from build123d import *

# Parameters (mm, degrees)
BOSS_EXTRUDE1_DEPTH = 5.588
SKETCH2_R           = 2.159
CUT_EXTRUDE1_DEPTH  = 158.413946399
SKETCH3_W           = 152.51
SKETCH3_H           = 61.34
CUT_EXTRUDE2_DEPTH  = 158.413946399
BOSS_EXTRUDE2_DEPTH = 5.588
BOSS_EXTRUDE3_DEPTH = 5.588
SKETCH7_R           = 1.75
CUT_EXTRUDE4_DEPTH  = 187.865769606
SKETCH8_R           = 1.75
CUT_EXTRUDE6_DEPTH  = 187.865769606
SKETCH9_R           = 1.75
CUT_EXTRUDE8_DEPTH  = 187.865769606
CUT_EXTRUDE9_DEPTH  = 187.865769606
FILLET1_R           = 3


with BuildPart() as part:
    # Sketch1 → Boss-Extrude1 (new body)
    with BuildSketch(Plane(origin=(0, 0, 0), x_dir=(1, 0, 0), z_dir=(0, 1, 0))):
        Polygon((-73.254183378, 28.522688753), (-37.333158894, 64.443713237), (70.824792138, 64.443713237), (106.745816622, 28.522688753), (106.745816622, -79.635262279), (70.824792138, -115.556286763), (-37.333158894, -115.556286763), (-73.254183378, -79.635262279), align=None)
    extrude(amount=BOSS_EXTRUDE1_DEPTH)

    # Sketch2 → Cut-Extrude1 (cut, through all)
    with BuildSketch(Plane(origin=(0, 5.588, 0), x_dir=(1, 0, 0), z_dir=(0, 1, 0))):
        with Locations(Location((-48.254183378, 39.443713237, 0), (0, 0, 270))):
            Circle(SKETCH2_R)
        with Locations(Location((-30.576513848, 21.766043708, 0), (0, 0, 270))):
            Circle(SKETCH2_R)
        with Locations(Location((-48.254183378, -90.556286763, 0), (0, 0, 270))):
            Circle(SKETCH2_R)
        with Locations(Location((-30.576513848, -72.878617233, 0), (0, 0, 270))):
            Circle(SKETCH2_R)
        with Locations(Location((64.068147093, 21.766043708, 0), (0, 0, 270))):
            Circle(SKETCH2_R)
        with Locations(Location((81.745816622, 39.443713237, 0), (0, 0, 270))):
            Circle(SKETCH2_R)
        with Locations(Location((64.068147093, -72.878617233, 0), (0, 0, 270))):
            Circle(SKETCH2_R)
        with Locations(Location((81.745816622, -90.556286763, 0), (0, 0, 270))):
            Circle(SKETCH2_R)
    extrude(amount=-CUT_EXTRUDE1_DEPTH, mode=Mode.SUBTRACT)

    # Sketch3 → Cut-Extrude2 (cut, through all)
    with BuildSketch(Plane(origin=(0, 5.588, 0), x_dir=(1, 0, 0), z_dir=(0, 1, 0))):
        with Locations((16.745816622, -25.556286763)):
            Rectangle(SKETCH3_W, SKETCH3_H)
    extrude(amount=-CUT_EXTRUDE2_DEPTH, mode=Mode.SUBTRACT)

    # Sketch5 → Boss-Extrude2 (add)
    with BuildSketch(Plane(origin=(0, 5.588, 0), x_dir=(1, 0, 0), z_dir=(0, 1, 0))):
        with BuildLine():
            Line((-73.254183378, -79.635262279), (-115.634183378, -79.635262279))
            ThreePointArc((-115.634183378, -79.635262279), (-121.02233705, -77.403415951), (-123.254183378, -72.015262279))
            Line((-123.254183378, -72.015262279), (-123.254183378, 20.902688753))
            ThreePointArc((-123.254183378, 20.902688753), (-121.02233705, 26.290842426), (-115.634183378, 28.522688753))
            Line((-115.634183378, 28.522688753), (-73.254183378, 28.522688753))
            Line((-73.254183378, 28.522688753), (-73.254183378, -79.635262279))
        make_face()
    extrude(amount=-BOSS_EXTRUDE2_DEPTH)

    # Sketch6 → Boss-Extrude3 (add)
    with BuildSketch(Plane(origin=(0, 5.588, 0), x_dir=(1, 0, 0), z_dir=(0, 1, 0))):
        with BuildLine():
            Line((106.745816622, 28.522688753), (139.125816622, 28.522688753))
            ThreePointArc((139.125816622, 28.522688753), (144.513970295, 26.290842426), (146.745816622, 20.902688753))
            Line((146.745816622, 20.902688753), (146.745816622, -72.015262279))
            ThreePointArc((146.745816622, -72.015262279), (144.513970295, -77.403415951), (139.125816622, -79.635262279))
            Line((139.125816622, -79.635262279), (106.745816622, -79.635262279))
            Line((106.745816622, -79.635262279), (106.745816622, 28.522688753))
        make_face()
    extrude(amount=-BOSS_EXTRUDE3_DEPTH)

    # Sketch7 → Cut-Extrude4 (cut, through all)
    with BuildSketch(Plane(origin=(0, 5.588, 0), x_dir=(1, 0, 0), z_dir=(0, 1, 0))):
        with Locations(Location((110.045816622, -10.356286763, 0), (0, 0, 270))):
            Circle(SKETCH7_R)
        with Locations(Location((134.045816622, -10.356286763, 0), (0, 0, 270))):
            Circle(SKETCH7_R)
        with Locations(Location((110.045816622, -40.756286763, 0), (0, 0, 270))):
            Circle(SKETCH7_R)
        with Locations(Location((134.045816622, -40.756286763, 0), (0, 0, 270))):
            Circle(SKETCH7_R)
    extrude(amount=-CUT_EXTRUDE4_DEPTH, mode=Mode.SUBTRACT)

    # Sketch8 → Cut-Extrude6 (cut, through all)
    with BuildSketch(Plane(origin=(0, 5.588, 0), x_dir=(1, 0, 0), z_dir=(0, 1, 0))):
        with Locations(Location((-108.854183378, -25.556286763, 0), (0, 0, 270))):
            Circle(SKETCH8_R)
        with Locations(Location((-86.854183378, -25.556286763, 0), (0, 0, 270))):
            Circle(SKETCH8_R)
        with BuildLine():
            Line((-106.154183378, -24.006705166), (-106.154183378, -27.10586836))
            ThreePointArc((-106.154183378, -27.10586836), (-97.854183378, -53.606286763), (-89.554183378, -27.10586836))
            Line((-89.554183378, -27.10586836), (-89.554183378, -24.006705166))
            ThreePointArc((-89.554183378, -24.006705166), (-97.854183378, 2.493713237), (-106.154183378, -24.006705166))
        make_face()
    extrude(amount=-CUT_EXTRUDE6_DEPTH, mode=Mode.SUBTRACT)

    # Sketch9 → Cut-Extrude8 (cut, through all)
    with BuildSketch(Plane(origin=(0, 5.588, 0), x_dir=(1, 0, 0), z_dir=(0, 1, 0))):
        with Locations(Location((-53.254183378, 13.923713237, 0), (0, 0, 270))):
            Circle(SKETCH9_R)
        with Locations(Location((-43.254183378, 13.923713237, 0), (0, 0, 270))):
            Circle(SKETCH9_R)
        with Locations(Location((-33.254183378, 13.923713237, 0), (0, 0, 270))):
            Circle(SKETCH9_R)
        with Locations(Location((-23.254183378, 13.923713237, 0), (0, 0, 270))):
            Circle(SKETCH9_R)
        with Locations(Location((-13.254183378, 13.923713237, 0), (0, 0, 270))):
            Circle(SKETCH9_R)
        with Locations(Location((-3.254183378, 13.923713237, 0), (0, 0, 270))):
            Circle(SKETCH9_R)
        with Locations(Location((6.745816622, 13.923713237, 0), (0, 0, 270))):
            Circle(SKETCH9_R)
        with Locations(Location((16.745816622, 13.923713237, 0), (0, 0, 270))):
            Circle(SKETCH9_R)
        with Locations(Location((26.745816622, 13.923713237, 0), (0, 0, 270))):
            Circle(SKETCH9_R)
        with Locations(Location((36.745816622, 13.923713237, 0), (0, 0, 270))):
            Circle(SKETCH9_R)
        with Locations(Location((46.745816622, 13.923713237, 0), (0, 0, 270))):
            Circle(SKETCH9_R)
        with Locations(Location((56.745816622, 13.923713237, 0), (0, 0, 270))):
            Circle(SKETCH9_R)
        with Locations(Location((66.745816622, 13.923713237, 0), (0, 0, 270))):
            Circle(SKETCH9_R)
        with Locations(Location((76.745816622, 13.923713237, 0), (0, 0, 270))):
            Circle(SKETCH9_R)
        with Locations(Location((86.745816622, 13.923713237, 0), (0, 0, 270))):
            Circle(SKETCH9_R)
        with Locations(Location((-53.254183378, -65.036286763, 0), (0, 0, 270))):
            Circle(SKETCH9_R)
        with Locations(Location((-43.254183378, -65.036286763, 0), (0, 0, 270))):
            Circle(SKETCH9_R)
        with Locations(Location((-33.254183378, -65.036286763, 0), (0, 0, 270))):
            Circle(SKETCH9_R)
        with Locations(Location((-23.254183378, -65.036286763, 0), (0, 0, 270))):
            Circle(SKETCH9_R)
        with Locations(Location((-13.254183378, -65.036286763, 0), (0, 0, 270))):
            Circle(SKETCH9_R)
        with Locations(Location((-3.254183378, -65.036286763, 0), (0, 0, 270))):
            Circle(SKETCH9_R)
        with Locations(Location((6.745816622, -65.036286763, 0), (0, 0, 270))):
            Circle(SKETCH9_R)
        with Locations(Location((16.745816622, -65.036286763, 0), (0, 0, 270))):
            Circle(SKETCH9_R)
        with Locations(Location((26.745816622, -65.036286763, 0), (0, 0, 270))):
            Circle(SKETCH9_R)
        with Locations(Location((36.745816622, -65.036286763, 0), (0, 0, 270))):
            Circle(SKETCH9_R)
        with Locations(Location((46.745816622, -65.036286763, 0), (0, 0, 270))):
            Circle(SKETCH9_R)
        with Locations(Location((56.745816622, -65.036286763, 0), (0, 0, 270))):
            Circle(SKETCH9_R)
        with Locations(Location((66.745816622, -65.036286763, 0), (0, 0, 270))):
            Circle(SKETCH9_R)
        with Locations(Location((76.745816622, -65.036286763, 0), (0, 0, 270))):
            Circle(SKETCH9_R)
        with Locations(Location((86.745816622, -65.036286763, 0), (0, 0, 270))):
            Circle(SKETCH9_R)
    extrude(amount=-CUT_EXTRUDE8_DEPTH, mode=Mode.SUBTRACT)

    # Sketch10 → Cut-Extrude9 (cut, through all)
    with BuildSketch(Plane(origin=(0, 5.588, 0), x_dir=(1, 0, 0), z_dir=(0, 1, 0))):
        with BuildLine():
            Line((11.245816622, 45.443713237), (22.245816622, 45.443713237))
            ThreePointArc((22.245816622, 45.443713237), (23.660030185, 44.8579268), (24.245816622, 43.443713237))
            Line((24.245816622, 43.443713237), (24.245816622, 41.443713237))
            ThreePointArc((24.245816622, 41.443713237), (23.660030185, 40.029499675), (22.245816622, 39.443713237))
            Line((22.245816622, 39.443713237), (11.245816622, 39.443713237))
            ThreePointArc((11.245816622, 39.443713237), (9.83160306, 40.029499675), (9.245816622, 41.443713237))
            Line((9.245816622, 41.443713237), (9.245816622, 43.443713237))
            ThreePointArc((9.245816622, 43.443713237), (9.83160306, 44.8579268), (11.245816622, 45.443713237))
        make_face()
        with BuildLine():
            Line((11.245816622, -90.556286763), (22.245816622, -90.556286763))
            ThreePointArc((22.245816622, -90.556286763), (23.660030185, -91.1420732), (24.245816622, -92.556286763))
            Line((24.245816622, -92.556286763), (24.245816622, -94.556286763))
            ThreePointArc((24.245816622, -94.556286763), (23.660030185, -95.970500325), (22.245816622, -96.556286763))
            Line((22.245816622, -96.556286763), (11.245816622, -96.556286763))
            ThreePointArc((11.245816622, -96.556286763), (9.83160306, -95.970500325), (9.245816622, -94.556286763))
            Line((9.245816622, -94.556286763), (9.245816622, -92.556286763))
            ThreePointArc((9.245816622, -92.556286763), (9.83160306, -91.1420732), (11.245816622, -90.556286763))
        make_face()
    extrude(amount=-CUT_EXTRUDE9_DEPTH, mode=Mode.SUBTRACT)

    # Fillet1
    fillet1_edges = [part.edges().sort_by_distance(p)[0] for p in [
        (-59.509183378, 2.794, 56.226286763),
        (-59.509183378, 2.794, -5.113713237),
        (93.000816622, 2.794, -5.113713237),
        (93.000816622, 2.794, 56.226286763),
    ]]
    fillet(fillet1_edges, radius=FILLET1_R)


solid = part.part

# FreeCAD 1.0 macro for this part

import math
import FreeCAD as App
import Part
import Sketcher
Q = App.Units.Quantity


def edges_at(feature, points):
    """Names of the edges that pass closest to the given points."""
    edges = feature.Shape.Edges
    near = lambda p: min(range(len(edges)), key=lambda i: edges[i].distToShape(Part.Vertex(*p))[0])
    return sorted({f"Edge{near(p) + 1}" for p in points})

doc = App.newDocument("Part")
body = doc.addObject("PartDesign::Body", "Body")

sketch1 = body.newObject("Sketcher::SketchObject", "Sketch")
sketch1.AttachmentSupport = (doc.getObject("XZ_Plane"), [""])
sketch1.MapMode = "FlatFace"
sketch1.addGeometry([
    Part.LineSegment(App.Vector(-37, -64, 0), App.Vector(-73, -29, 0)),
    Part.LineSegment(App.Vector(-73, -29, 0), App.Vector(-73, 80, 0)),
    Part.LineSegment(App.Vector(-73, 80, 0), App.Vector(-37, 116, 0)),
    Part.LineSegment(App.Vector(-37, 116, 0), App.Vector(71, 116, 0)),
    Part.LineSegment(App.Vector(71, 116, 0), App.Vector(107, 80, 0)),
    Part.LineSegment(App.Vector(107, 80, 0), App.Vector(107, -29, 0)),
    Part.LineSegment(App.Vector(107, -29, 0), App.Vector(71, -64, 0)),
    Part.LineSegment(App.Vector(71, -64, 0), App.Vector(-37, -64, 0)),
], False)
sketch1.addConstraint([
    Sketcher.Constraint("Coincident", 0, 2, 1, 1),
    Sketcher.Constraint("Coincident", 1, 2, 2, 1),
    Sketcher.Constraint("Coincident", 2, 2, 3, 1),
    Sketcher.Constraint("Coincident", 3, 2, 4, 1),
    Sketcher.Constraint("Coincident", 4, 2, 5, 1),
    Sketcher.Constraint("Coincident", 5, 2, 6, 1),
    Sketcher.Constraint("Coincident", 6, 2, 7, 1),
    Sketcher.Constraint("Coincident", 7, 2, 0, 1),
    Sketcher.Constraint("Vertical", 1),
    Sketcher.Constraint("Horizontal", 3),
    Sketcher.Constraint("Vertical", 5),
    Sketcher.Constraint("Horizontal", 7),
    Sketcher.Constraint("Perpendicular", 0, 2),
    Sketcher.Constraint("Perpendicular", 2, 4),
    Sketcher.Constraint("Perpendicular", 4, 6),
    Sketcher.Constraint("Horizontal", 1, 2, 4, 2),
    Sketcher.Constraint("Horizontal", 0, 2, 5, 2),
    Sketcher.Constraint("Vertical", 3, 2, 6, 2),
    Sketcher.Constraint("Vertical", 2, 2, 7, 2),
    Sketcher.Constraint("Equal", 7, 1),
    Sketcher.Constraint("DistanceX", 1, 2, 4, 2, Q("180 mm")),
    Sketcher.Constraint("Distance", 0, Q("50.8 mm")),
    Sketcher.Constraint("DistanceY", 0, 2, -1, 1, Q("28.522689 mm")),
    Sketcher.Constraint("DistanceX", 2, 2, -1, 1, Q("37.333159 mm")),
])
pad1 = body.newObject("PartDesign::Pad", "Pad")
pad1.Profile = sketch1
pad1.Length = 5.588
pad1.Reversed = True

sketch2 = body.newObject("Sketcher::SketchObject", "Sketch001")
sketch2.AttachmentSupport = (doc.getObject("XZ_Plane"), [""])
sketch2.MapMode = "FlatFace"
sketch2.AttachmentOffset = App.Placement(App.Vector(0, 0, -5.588), App.Rotation())
sketch2.addGeometry([
    Part.Circle(App.Vector(-48.3, -39.4, 0), App.Vector(0, 0, 1), 2.2),
    Part.Circle(App.Vector(-30.6, -21.8, 0), App.Vector(0, 0, 1), 2.2),
    Part.Circle(App.Vector(-48.3, 90.6, 0), App.Vector(0, 0, 1), 2.2),
    Part.Circle(App.Vector(-30.6, 72.9, 0), App.Vector(0, 0, 1), 2.2),
    Part.Circle(App.Vector(64.1, -21.8, 0), App.Vector(0, 0, 1), 2.2),
    Part.Circle(App.Vector(81.7, -39.4, 0), App.Vector(0, 0, 1), 2.2),
    Part.Circle(App.Vector(64.1, 72.9, 0), App.Vector(0, 0, 1), 2.2),
    Part.Circle(App.Vector(81.7, 90.6, 0), App.Vector(0, 0, 1), 2.2),
], False)
sketch2.addConstraint([
    Sketcher.Constraint("Equal", 0, 1),
    Sketcher.Constraint("Equal", 1, 2),
    Sketcher.Constraint("Equal", 2, 3),
    Sketcher.Constraint("Equal", 3, 4),
    Sketcher.Constraint("Equal", 4, 5),
    Sketcher.Constraint("Equal", 5, 6),
    Sketcher.Constraint("Equal", 6, 7),
    Sketcher.Constraint("Horizontal", 1, 3, 4, 3),
    Sketcher.Constraint("Horizontal", 0, 3, 5, 3),
    Sketcher.Constraint("Horizontal", 3, 3, 6, 3),
    Sketcher.Constraint("Horizontal", 2, 3, 7, 3),
    Sketcher.Constraint("Vertical", 0, 3, 2, 3),
    Sketcher.Constraint("Vertical", 1, 3, 3, 3),
    Sketcher.Constraint("Vertical", 4, 3, 6, 3),
    Sketcher.Constraint("Vertical", 5, 3, 7, 3),
    Sketcher.Constraint("Diameter", 0, Q("4.318 mm")),
    Sketcher.Constraint("DistanceY", 0, 3, 2, 3, Q("130 mm")),
    Sketcher.Constraint("DistanceX", 0, 3, 5, 3, Q("130 mm")),
    Sketcher.Constraint("DistanceX", 0, 3, 1, 3, Q("17.67767 mm")),
    Sketcher.Constraint("DistanceY", 0, 3, 1, 3, Q("17.67767 mm")),
    Sketcher.Constraint("DistanceY", 3, 3, 2, 3, Q("17.67767 mm")),
    Sketcher.Constraint("DistanceX", 1, 3, 4, 3, Q("94.644661 mm")),
    Sketcher.Constraint("DistanceX", 0, 3, -1, 1, Q("48.254183 mm")),
    Sketcher.Constraint("DistanceY", 0, 3, -1, 1, Q("39.443713 mm")),
])
pocket1 = body.newObject("PartDesign::Pocket", "Pocket")
pocket1.Profile = sketch2
pocket1.Type = "ThroughAll"
pocket1.Reversed = True

sketch3 = body.newObject("Sketcher::SketchObject", "Sketch002")
sketch3.AttachmentSupport = (doc.getObject("XZ_Plane"), [""])
sketch3.MapMode = "FlatFace"
sketch3.AttachmentOffset = App.Placement(App.Vector(0, 0, -5.588), App.Rotation())
sketch3.addGeometry([
    Part.LineSegment(App.Vector(-60, -5, 0), App.Vector(-60, 56, 0)),
    Part.LineSegment(App.Vector(-60, 56, 0), App.Vector(93, 56, 0)),
    Part.LineSegment(App.Vector(93, 56, 0), App.Vector(93, -5, 0)),
    Part.LineSegment(App.Vector(93, -5, 0), App.Vector(-60, -5, 0)),
], False)
sketch3.addConstraint([
    Sketcher.Constraint("Coincident", 0, 2, 1, 1),
    Sketcher.Constraint("Coincident", 1, 2, 2, 1),
    Sketcher.Constraint("Coincident", 2, 2, 3, 1),
    Sketcher.Constraint("Coincident", 3, 2, 0, 1),
    Sketcher.Constraint("Vertical", 0),
    Sketcher.Constraint("Horizontal", 1),
    Sketcher.Constraint("Vertical", 2),
    Sketcher.Constraint("Horizontal", 3),
    Sketcher.Constraint("DistanceX", 1, 1, 1, 2, Q("152.51 mm")),
    Sketcher.Constraint("DistanceY", 0, 1, 0, 2, Q("61.34 mm")),
    Sketcher.Constraint("DistanceX", 0, 2, -1, 1, Q("59.509183 mm")),
    Sketcher.Constraint("DistanceY", -1, 1, 0, 2, Q("56.226287 mm")),
])
pocket2 = body.newObject("PartDesign::Pocket", "Pocket001")
pocket2.Profile = sketch3
pocket2.Type = "ThroughAll"
pocket2.Reversed = True

sketch4 = body.newObject("Sketcher::SketchObject", "Sketch003")
sketch4.AttachmentSupport = (doc.getObject("XZ_Plane"), [""])
sketch4.MapMode = "FlatFace"
sketch4.AttachmentOffset = App.Placement(App.Vector(0, 0, -5.588), App.Rotation())
sketch4.addGeometry([
    Part.LineSegment(App.Vector(-116, 80, 0), App.Vector(-73, 80, 0)),
    Part.LineSegment(App.Vector(-73, 80, 0), App.Vector(-73, -29, 0)),
    Part.LineSegment(App.Vector(-73, -29, 0), App.Vector(-116, -29, 0)),
    Part.ArcOfCircle(Part.Circle(App.Vector(-116, -21, 0), App.Vector(0, 0, 1), 8), math.radians(180), math.radians(270)),
    Part.LineSegment(App.Vector(-123, -21, 0), App.Vector(-123, 72, 0)),
    Part.ArcOfCircle(Part.Circle(App.Vector(-116, 72, 0), App.Vector(0, 0, 1), 8), math.radians(90), math.radians(180)),
], False)
sketch4.addConstraint([
    Sketcher.Constraint("Coincident", 0, 2, 1, 1),
    Sketcher.Constraint("Coincident", 1, 2, 2, 1),
    Sketcher.Constraint("Tangent", 2, 2, 3, 2),
    Sketcher.Constraint("Tangent", 3, 1, 4, 1),
    Sketcher.Constraint("Tangent", 4, 2, 5, 2),
    Sketcher.Constraint("Tangent", 5, 1, 0, 1),
    Sketcher.Constraint("Horizontal", 0),
    Sketcher.Constraint("Vertical", 1),
    Sketcher.Constraint("Horizontal", 2),
    Sketcher.Constraint("Vertical", 4),
    Sketcher.Constraint("Equal", 3, 5),
    Sketcher.Constraint("Radius", 3, Q("7.62 mm")),
    Sketcher.Constraint("DistanceX", 3, 1, 1, 2, Q("50 mm")),
    Sketcher.Constraint("DistanceY", 1, 2, 1, 1, Q("108.157951 mm")),
    Sketcher.Constraint("DistanceY", 3, 3, -1, 1, Q("20.902689 mm")),
    Sketcher.Constraint("DistanceX", 3, 3, -1, 1, Q("115.634183 mm")),
])
pad2 = body.newObject("PartDesign::Pad", "Pad001")
pad2.Profile = sketch4
pad2.Length = 5.588

sketch5 = body.newObject("Sketcher::SketchObject", "Sketch004")
sketch5.AttachmentSupport = (doc.getObject("XZ_Plane"), [""])
sketch5.MapMode = "FlatFace"
sketch5.AttachmentOffset = App.Placement(App.Vector(0, 0, -5.588), App.Rotation())
sketch5.addGeometry([
    Part.LineSegment(App.Vector(139, -29, 0), App.Vector(107, -29, 0)),
    Part.LineSegment(App.Vector(107, -29, 0), App.Vector(107, 80, 0)),
    Part.LineSegment(App.Vector(107, 80, 0), App.Vector(139, 80, 0)),
    Part.ArcOfCircle(Part.Circle(App.Vector(139, 72, 0), App.Vector(0, 0, 1), 8), math.radians(0), math.radians(90)),
    Part.LineSegment(App.Vector(147, 72, 0), App.Vector(147, -21, 0)),
    Part.ArcOfCircle(Part.Circle(App.Vector(139, -21, 0), App.Vector(0, 0, 1), 8), math.radians(-90), math.radians(0)),
], False)
sketch5.addConstraint([
    Sketcher.Constraint("Coincident", 0, 2, 1, 1),
    Sketcher.Constraint("Coincident", 1, 2, 2, 1),
    Sketcher.Constraint("Tangent", 2, 2, 3, 2),
    Sketcher.Constraint("Tangent", 3, 1, 4, 1),
    Sketcher.Constraint("Tangent", 4, 2, 5, 2),
    Sketcher.Constraint("Tangent", 5, 1, 0, 1),
    Sketcher.Constraint("Horizontal", 0),
    Sketcher.Constraint("Vertical", 1),
    Sketcher.Constraint("Horizontal", 2),
    Sketcher.Constraint("Vertical", 4),
    Sketcher.Constraint("Equal", 3, 5),
    Sketcher.Constraint("Radius", 3, Q("7.62 mm")),
    Sketcher.Constraint("DistanceX", 1, 2, 3, 1, Q("40 mm")),
    Sketcher.Constraint("DistanceY", 1, 1, 1, 2, Q("108.157951 mm")),
    Sketcher.Constraint("DistanceY", 5, 3, -1, 1, Q("20.902689 mm")),
    Sketcher.Constraint("DistanceX", -1, 1, 3, 3, Q("139.125817 mm")),
])
pad3 = body.newObject("PartDesign::Pad", "Pad002")
pad3.Profile = sketch5
pad3.Length = 5.588

sketch6 = body.newObject("Sketcher::SketchObject", "Sketch005")
sketch6.AttachmentSupport = (doc.getObject("XZ_Plane"), [""])
sketch6.MapMode = "FlatFace"
sketch6.AttachmentOffset = App.Placement(App.Vector(0, 0, -5.588), App.Rotation())
sketch6.addGeometry([
    Part.Circle(App.Vector(110, 10.4, 0), App.Vector(0, 0, 1), 1.8),
    Part.Circle(App.Vector(134, 10.4, 0), App.Vector(0, 0, 1), 1.8),
    Part.Circle(App.Vector(110, 40.8, 0), App.Vector(0, 0, 1), 1.8),
    Part.Circle(App.Vector(134, 40.8, 0), App.Vector(0, 0, 1), 1.8),
], False)
sketch6.addConstraint([
    Sketcher.Constraint("Equal", 0, 1),
    Sketcher.Constraint("Equal", 1, 2),
    Sketcher.Constraint("Equal", 2, 3),
    Sketcher.Constraint("Horizontal", 0, 3, 1, 3),
    Sketcher.Constraint("Horizontal", 2, 3, 3, 3),
    Sketcher.Constraint("Vertical", 0, 3, 2, 3),
    Sketcher.Constraint("Vertical", 1, 3, 3, 3),
    Sketcher.Constraint("Diameter", 0, Q("3.5 mm")),
    Sketcher.Constraint("DistanceX", 0, 3, 1, 3, Q("24 mm")),
    Sketcher.Constraint("DistanceY", 0, 3, 2, 3, Q("30.4 mm")),
    Sketcher.Constraint("DistanceX", -1, 1, 0, 3, Q("110.045817 mm")),
    Sketcher.Constraint("DistanceY", -1, 1, 0, 3, Q("10.356287 mm")),
])
pocket3 = body.newObject("PartDesign::Pocket", "Pocket002")
pocket3.Profile = sketch6
pocket3.Type = "ThroughAll"
pocket3.Reversed = True

sketch7 = body.newObject("Sketcher::SketchObject", "Sketch006")
sketch7.AttachmentSupport = (doc.getObject("XZ_Plane"), [""])
sketch7.MapMode = "FlatFace"
sketch7.AttachmentOffset = App.Placement(App.Vector(0, 0, -5.588), App.Rotation())
sketch7.addGeometry([
    Part.Circle(App.Vector(-108.9, 25.6, 0), App.Vector(0, 0, 1), 1.8),
    Part.Circle(App.Vector(-86.9, 25.6, 0), App.Vector(0, 0, 1), 1.8),
    Part.LineSegment(App.Vector(-106.2, 24, 0), App.Vector(-106.2, 27.1, 0)),
    Part.ArcOfCircle(Part.Circle(App.Vector(-97.9, 39.1, 0), App.Vector(0, 0, 1), 14.6), math.radians(-55), math.radians(235)),
    Part.LineSegment(App.Vector(-89.6, 27.1, 0), App.Vector(-89.6, 24, 0)),
    Part.ArcOfCircle(Part.Circle(App.Vector(-97.9, 12.1, 0), App.Vector(0, 0, 1), 14.6), math.radians(125), math.radians(415)),
], False)
sketch7.addConstraint([
    Sketcher.Constraint("Coincident", 2, 2, 3, 2),
    Sketcher.Constraint("Coincident", 3, 1, 4, 1),
    Sketcher.Constraint("Coincident", 4, 2, 5, 2),
    Sketcher.Constraint("Coincident", 5, 1, 2, 1),
    Sketcher.Constraint("Vertical", 2),
    Sketcher.Constraint("Vertical", 4),
    Sketcher.Constraint("Equal", 0, 1),
    Sketcher.Constraint("Equal", 3, 5),
    Sketcher.Constraint("Horizontal", 0, 3, 1, 3),
    Sketcher.Constraint("Horizontal", 2, 2, 3, 1),
    Sketcher.Constraint("Horizontal", 4, 2, 5, 1),
    Sketcher.Constraint("Diameter", 0, Q("3.5 mm")),
    Sketcher.Constraint("Radius", 3, Q("14.55 mm")),
    Sketcher.Constraint("DistanceX", 0, 3, 1, 3, Q("22 mm")),
    Sketcher.Constraint("DistanceX", 0, 3, 3, 3, Q("11 mm")),
    Sketcher.Constraint("DistanceY", 5, 3, 3, 3, Q("27 mm")),
    Sketcher.Constraint("DistanceY", 0, 3, 3, 3, Q("13.5 mm")),
    Sketcher.Constraint("DistanceX", 0, 3, 2, 2, Q("2.7 mm")),
    Sketcher.Constraint("DistanceY", -1, 1, 2, 2, Q("27.105868 mm")),
    Sketcher.Constraint("DistanceX", 0, 3, -1, 1, Q("108.854183 mm")),
])
pocket4 = body.newObject("PartDesign::Pocket", "Pocket003")
pocket4.Profile = sketch7
pocket4.Type = "ThroughAll"
pocket4.Reversed = True

sketch8 = body.newObject("Sketcher::SketchObject", "Sketch007")
sketch8.AttachmentSupport = (doc.getObject("XZ_Plane"), [""])
sketch8.MapMode = "FlatFace"
sketch8.AttachmentOffset = App.Placement(App.Vector(0, 0, -5.588), App.Rotation())
sketch8.addGeometry([
    Part.Circle(App.Vector(-53.3, -13.9, 0), App.Vector(0, 0, 1), 1.8),
    Part.Circle(App.Vector(-43.3, -13.9, 0), App.Vector(0, 0, 1), 1.8),
    Part.Circle(App.Vector(-33.3, -13.9, 0), App.Vector(0, 0, 1), 1.8),
    Part.Circle(App.Vector(-23.3, -13.9, 0), App.Vector(0, 0, 1), 1.8),
    Part.Circle(App.Vector(-13.3, -13.9, 0), App.Vector(0, 0, 1), 1.8),
    Part.Circle(App.Vector(-3.3, -13.9, 0), App.Vector(0, 0, 1), 1.8),
    Part.Circle(App.Vector(6.7, -13.9, 0), App.Vector(0, 0, 1), 1.8),
    Part.Circle(App.Vector(16.7, -13.9, 0), App.Vector(0, 0, 1), 1.8),
    Part.Circle(App.Vector(26.7, -13.9, 0), App.Vector(0, 0, 1), 1.8),
    Part.Circle(App.Vector(36.7, -13.9, 0), App.Vector(0, 0, 1), 1.8),
    Part.Circle(App.Vector(46.7, -13.9, 0), App.Vector(0, 0, 1), 1.8),
    Part.Circle(App.Vector(56.7, -13.9, 0), App.Vector(0, 0, 1), 1.8),
    Part.Circle(App.Vector(66.7, -13.9, 0), App.Vector(0, 0, 1), 1.8),
    Part.Circle(App.Vector(76.7, -13.9, 0), App.Vector(0, 0, 1), 1.8),
    Part.Circle(App.Vector(86.7, -13.9, 0), App.Vector(0, 0, 1), 1.8),
    Part.Circle(App.Vector(-53.3, 65, 0), App.Vector(0, 0, 1), 1.8),
    Part.Circle(App.Vector(-43.3, 65, 0), App.Vector(0, 0, 1), 1.8),
    Part.Circle(App.Vector(-33.3, 65, 0), App.Vector(0, 0, 1), 1.8),
    Part.Circle(App.Vector(-23.3, 65, 0), App.Vector(0, 0, 1), 1.8),
    Part.Circle(App.Vector(-13.3, 65, 0), App.Vector(0, 0, 1), 1.8),
    Part.Circle(App.Vector(-3.3, 65, 0), App.Vector(0, 0, 1), 1.8),
    Part.Circle(App.Vector(6.7, 65, 0), App.Vector(0, 0, 1), 1.8),
    Part.Circle(App.Vector(16.7, 65, 0), App.Vector(0, 0, 1), 1.8),
    Part.Circle(App.Vector(26.7, 65, 0), App.Vector(0, 0, 1), 1.8),
    Part.Circle(App.Vector(36.7, 65, 0), App.Vector(0, 0, 1), 1.8),
    Part.Circle(App.Vector(46.7, 65, 0), App.Vector(0, 0, 1), 1.8),
    Part.Circle(App.Vector(56.7, 65, 0), App.Vector(0, 0, 1), 1.8),
    Part.Circle(App.Vector(66.7, 65, 0), App.Vector(0, 0, 1), 1.8),
    Part.Circle(App.Vector(76.7, 65, 0), App.Vector(0, 0, 1), 1.8),
    Part.Circle(App.Vector(86.7, 65, 0), App.Vector(0, 0, 1), 1.8),
], False)
sketch8.addConstraint([
    Sketcher.Constraint("Equal", 0, 1),
    Sketcher.Constraint("Equal", 1, 2),
    Sketcher.Constraint("Equal", 2, 3),
    Sketcher.Constraint("Equal", 3, 4),
    Sketcher.Constraint("Equal", 4, 5),
    Sketcher.Constraint("Equal", 5, 6),
    Sketcher.Constraint("Equal", 6, 7),
    Sketcher.Constraint("Equal", 7, 8),
    Sketcher.Constraint("Equal", 8, 9),
    Sketcher.Constraint("Equal", 9, 10),
    Sketcher.Constraint("Equal", 10, 11),
    Sketcher.Constraint("Equal", 11, 12),
    Sketcher.Constraint("Equal", 12, 13),
    Sketcher.Constraint("Equal", 13, 14),
    Sketcher.Constraint("Equal", 14, 15),
    Sketcher.Constraint("Equal", 15, 16),
    Sketcher.Constraint("Equal", 16, 17),
    Sketcher.Constraint("Equal", 17, 18),
    Sketcher.Constraint("Equal", 18, 19),
    Sketcher.Constraint("Equal", 19, 20),
    Sketcher.Constraint("Equal", 20, 21),
    Sketcher.Constraint("Equal", 21, 22),
    Sketcher.Constraint("Equal", 22, 23),
    Sketcher.Constraint("Equal", 23, 24),
    Sketcher.Constraint("Equal", 24, 25),
    Sketcher.Constraint("Equal", 25, 26),
    Sketcher.Constraint("Equal", 26, 27),
    Sketcher.Constraint("Equal", 27, 28),
    Sketcher.Constraint("Equal", 28, 29),
    Sketcher.Constraint("Horizontal", 0, 3, 1, 3),
    Sketcher.Constraint("Horizontal", 1, 3, 2, 3),
    Sketcher.Constraint("Horizontal", 2, 3, 3, 3),
    Sketcher.Constraint("Horizontal", 3, 3, 4, 3),
    Sketcher.Constraint("Horizontal", 4, 3, 5, 3),
    Sketcher.Constraint("Horizontal", 5, 3, 6, 3),
    Sketcher.Constraint("Horizontal", 6, 3, 7, 3),
    Sketcher.Constraint("Horizontal", 7, 3, 8, 3),
    Sketcher.Constraint("Horizontal", 8, 3, 9, 3),
    Sketcher.Constraint("Horizontal", 9, 3, 10, 3),
    Sketcher.Constraint("Horizontal", 10, 3, 11, 3),
    Sketcher.Constraint("Horizontal", 11, 3, 12, 3),
    Sketcher.Constraint("Horizontal", 12, 3, 13, 3),
    Sketcher.Constraint("Horizontal", 13, 3, 14, 3),
    Sketcher.Constraint("Horizontal", 15, 3, 16, 3),
    Sketcher.Constraint("Horizontal", 16, 3, 17, 3),
    Sketcher.Constraint("Horizontal", 17, 3, 18, 3),
    Sketcher.Constraint("Horizontal", 18, 3, 19, 3),
    Sketcher.Constraint("Horizontal", 19, 3, 20, 3),
    Sketcher.Constraint("Horizontal", 20, 3, 21, 3),
    Sketcher.Constraint("Horizontal", 21, 3, 22, 3),
    Sketcher.Constraint("Horizontal", 22, 3, 23, 3),
    Sketcher.Constraint("Horizontal", 23, 3, 24, 3),
    Sketcher.Constraint("Horizontal", 24, 3, 25, 3),
    Sketcher.Constraint("Horizontal", 25, 3, 26, 3),
    Sketcher.Constraint("Horizontal", 26, 3, 27, 3),
    Sketcher.Constraint("Horizontal", 27, 3, 28, 3),
    Sketcher.Constraint("Horizontal", 28, 3, 29, 3),
    Sketcher.Constraint("Vertical", 0, 3, 15, 3),
    Sketcher.Constraint("Vertical", 1, 3, 16, 3),
    Sketcher.Constraint("Vertical", 2, 3, 17, 3),
    Sketcher.Constraint("Vertical", 3, 3, 18, 3),
    Sketcher.Constraint("Vertical", 4, 3, 19, 3),
    Sketcher.Constraint("Vertical", 5, 3, 20, 3),
    Sketcher.Constraint("Vertical", 6, 3, 21, 3),
    Sketcher.Constraint("Vertical", 7, 3, 22, 3),
    Sketcher.Constraint("Vertical", 8, 3, 23, 3),
    Sketcher.Constraint("Vertical", 9, 3, 24, 3),
    Sketcher.Constraint("Vertical", 10, 3, 25, 3),
    Sketcher.Constraint("Vertical", 11, 3, 26, 3),
    Sketcher.Constraint("Vertical", 12, 3, 27, 3),
    Sketcher.Constraint("Vertical", 13, 3, 28, 3),
    Sketcher.Constraint("Vertical", 14, 3, 29, 3),
    Sketcher.Constraint("Diameter", 0, Q("3.5 mm")),
    Sketcher.Constraint("DistanceX", 0, 3, 1, 3, Q("10 mm")),
    Sketcher.Constraint("DistanceX", 1, 3, 2, 3, Q("10 mm")),
    Sketcher.Constraint("DistanceX", 2, 3, 3, 3, Q("10 mm")),
    Sketcher.Constraint("DistanceX", 3, 3, 4, 3, Q("10 mm")),
    Sketcher.Constraint("DistanceX", 4, 3, 5, 3, Q("10 mm")),
    Sketcher.Constraint("DistanceX", 5, 3, 6, 3, Q("10 mm")),
    Sketcher.Constraint("DistanceX", 6, 3, 7, 3, Q("10 mm")),
    Sketcher.Constraint("DistanceX", 7, 3, 8, 3, Q("10 mm")),
    Sketcher.Constraint("DistanceX", 8, 3, 9, 3, Q("10 mm")),
    Sketcher.Constraint("DistanceX", 9, 3, 10, 3, Q("10 mm")),
    Sketcher.Constraint("DistanceX", 10, 3, 11, 3, Q("10 mm")),
    Sketcher.Constraint("DistanceX", 11, 3, 12, 3, Q("10 mm")),
    Sketcher.Constraint("DistanceX", 12, 3, 13, 3, Q("10 mm")),
    Sketcher.Constraint("DistanceX", 13, 3, 14, 3, Q("10 mm")),
    Sketcher.Constraint("DistanceY", 0, 3, 15, 3, Q("78.96 mm")),
    Sketcher.Constraint("DistanceX", 0, 3, -1, 1, Q("53.254183 mm")),
    Sketcher.Constraint("DistanceY", 0, 3, -1, 1, Q("13.923713 mm")),
])
pocket5 = body.newObject("PartDesign::Pocket", "Pocket004")
pocket5.Profile = sketch8
pocket5.Type = "ThroughAll"
pocket5.Reversed = True

sketch9 = body.newObject("Sketcher::SketchObject", "Sketch008")
sketch9.AttachmentSupport = (doc.getObject("XZ_Plane"), [""])
sketch9.MapMode = "FlatFace"
sketch9.AttachmentOffset = App.Placement(App.Vector(0, 0, -5.588), App.Rotation())
sketch9.addGeometry([
    Part.LineSegment(App.Vector(22.2, -45.4, 0), App.Vector(11.2, -45.4, 0)),
    Part.ArcOfCircle(Part.Circle(App.Vector(11.2, -43.4, 0), App.Vector(0, 0, 1), 2), math.radians(180), math.radians(270)),
    Part.LineSegment(App.Vector(9.2, -43.4, 0), App.Vector(9.2, -41.4, 0)),
    Part.ArcOfCircle(Part.Circle(App.Vector(11.2, -41.4, 0), App.Vector(0, 0, 1), 2), math.radians(90), math.radians(180)),
    Part.LineSegment(App.Vector(11.2, -39.4, 0), App.Vector(22.2, -39.4, 0)),
    Part.ArcOfCircle(Part.Circle(App.Vector(22.2, -41.4, 0), App.Vector(0, 0, 1), 2), math.radians(0), math.radians(90)),
    Part.LineSegment(App.Vector(24.2, -41.4, 0), App.Vector(24.2, -43.4, 0)),
    Part.ArcOfCircle(Part.Circle(App.Vector(22.2, -43.4, 0), App.Vector(0, 0, 1), 2), math.radians(-90), math.radians(0)),
    Part.LineSegment(App.Vector(22.2, 90.6, 0), App.Vector(11.2, 90.6, 0)),
    Part.ArcOfCircle(Part.Circle(App.Vector(11.2, 92.6, 0), App.Vector(0, 0, 1), 2), math.radians(180), math.radians(270)),
    Part.LineSegment(App.Vector(9.2, 92.6, 0), App.Vector(9.2, 94.6, 0)),
    Part.ArcOfCircle(Part.Circle(App.Vector(11.2, 94.6, 0), App.Vector(0, 0, 1), 2), math.radians(90), math.radians(180)),
    Part.LineSegment(App.Vector(11.2, 96.6, 0), App.Vector(22.2, 96.6, 0)),
    Part.ArcOfCircle(Part.Circle(App.Vector(22.2, 94.6, 0), App.Vector(0, 0, 1), 2), math.radians(0), math.radians(90)),
    Part.LineSegment(App.Vector(24.2, 94.6, 0), App.Vector(24.2, 92.6, 0)),
    Part.ArcOfCircle(Part.Circle(App.Vector(22.2, 92.6, 0), App.Vector(0, 0, 1), 2), math.radians(-90), math.radians(0)),
], False)
sketch9.addConstraint([
    Sketcher.Constraint("Tangent", 0, 2, 1, 2),
    Sketcher.Constraint("Tangent", 1, 1, 2, 1),
    Sketcher.Constraint("Tangent", 2, 2, 3, 2),
    Sketcher.Constraint("Tangent", 3, 1, 4, 1),
    Sketcher.Constraint("Tangent", 4, 2, 5, 2),
    Sketcher.Constraint("Tangent", 5, 1, 6, 1),
    Sketcher.Constraint("Tangent", 6, 2, 7, 2),
    Sketcher.Constraint("Tangent", 7, 1, 0, 1),
    Sketcher.Constraint("Tangent", 8, 2, 9, 2),
    Sketcher.Constraint("Tangent", 9, 1, 10, 1),
    Sketcher.Constraint("Tangent", 10, 2, 11, 2),
    Sketcher.Constraint("Tangent", 11, 1, 12, 1),
    Sketcher.Constraint("Tangent", 12, 2, 13, 2),
    Sketcher.Constraint("Tangent", 13, 1, 14, 1),
    Sketcher.Constraint("Tangent", 14, 2, 15, 2),
    Sketcher.Constraint("Tangent", 15, 1, 8, 1),
    Sketcher.Constraint("Horizontal", 0),
    Sketcher.Constraint("Vertical", 2),
    Sketcher.Constraint("Horizontal", 4),
    Sketcher.Constraint("Vertical", 6),
    Sketcher.Constraint("Horizontal", 8),
    Sketcher.Constraint("Vertical", 10),
    Sketcher.Constraint("Horizontal", 12),
    Sketcher.Constraint("Vertical", 14),
    Sketcher.Constraint("Equal", 1, 3),
    Sketcher.Constraint("Equal", 3, 5),
    Sketcher.Constraint("Equal", 5, 7),
    Sketcher.Constraint("Equal", 7, 9),
    Sketcher.Constraint("Equal", 9, 11),
    Sketcher.Constraint("Equal", 11, 13),
    Sketcher.Constraint("Equal", 13, 15),
    Sketcher.Constraint("Vertical", 3, 3, 9, 3),
    Sketcher.Constraint("Vertical", 7, 3, 13, 3),
    Sketcher.Constraint("Equal", 6, 10),
    Sketcher.Constraint("Radius", 1, Q("2 mm")),
    Sketcher.Constraint("DistanceX", 0, 2, 0, 1, Q("11 mm")),
    Sketcher.Constraint("DistanceY", 2, 1, 2, 2, Q("2 mm")),
    Sketcher.Constraint("DistanceY", 3, 3, 9, 3, Q("134 mm")),
    Sketcher.Constraint("DistanceX", -1, 1, 1, 3, Q("11.245817 mm")),
    Sketcher.Constraint("DistanceY", 1, 3, -1, 1, Q("43.443713 mm")),
])
pocket6 = body.newObject("PartDesign::Pocket", "Pocket005")
pocket6.Profile = sketch9
pocket6.Type = "ThroughAll"
pocket6.Reversed = True
doc.recompute()

fillet = body.newObject("PartDesign::Fillet", "Fillet")
fillet.Base = (pocket6, edges_at(pocket6, [
    (-59.509, 2.794, 56.226),
    (-59.509, 2.794, -5.114),
    (93.001, 2.794, -5.114),
    (93.001, 2.794, 56.226),
]))
fillet.Radius = 3

doc.recompute()
